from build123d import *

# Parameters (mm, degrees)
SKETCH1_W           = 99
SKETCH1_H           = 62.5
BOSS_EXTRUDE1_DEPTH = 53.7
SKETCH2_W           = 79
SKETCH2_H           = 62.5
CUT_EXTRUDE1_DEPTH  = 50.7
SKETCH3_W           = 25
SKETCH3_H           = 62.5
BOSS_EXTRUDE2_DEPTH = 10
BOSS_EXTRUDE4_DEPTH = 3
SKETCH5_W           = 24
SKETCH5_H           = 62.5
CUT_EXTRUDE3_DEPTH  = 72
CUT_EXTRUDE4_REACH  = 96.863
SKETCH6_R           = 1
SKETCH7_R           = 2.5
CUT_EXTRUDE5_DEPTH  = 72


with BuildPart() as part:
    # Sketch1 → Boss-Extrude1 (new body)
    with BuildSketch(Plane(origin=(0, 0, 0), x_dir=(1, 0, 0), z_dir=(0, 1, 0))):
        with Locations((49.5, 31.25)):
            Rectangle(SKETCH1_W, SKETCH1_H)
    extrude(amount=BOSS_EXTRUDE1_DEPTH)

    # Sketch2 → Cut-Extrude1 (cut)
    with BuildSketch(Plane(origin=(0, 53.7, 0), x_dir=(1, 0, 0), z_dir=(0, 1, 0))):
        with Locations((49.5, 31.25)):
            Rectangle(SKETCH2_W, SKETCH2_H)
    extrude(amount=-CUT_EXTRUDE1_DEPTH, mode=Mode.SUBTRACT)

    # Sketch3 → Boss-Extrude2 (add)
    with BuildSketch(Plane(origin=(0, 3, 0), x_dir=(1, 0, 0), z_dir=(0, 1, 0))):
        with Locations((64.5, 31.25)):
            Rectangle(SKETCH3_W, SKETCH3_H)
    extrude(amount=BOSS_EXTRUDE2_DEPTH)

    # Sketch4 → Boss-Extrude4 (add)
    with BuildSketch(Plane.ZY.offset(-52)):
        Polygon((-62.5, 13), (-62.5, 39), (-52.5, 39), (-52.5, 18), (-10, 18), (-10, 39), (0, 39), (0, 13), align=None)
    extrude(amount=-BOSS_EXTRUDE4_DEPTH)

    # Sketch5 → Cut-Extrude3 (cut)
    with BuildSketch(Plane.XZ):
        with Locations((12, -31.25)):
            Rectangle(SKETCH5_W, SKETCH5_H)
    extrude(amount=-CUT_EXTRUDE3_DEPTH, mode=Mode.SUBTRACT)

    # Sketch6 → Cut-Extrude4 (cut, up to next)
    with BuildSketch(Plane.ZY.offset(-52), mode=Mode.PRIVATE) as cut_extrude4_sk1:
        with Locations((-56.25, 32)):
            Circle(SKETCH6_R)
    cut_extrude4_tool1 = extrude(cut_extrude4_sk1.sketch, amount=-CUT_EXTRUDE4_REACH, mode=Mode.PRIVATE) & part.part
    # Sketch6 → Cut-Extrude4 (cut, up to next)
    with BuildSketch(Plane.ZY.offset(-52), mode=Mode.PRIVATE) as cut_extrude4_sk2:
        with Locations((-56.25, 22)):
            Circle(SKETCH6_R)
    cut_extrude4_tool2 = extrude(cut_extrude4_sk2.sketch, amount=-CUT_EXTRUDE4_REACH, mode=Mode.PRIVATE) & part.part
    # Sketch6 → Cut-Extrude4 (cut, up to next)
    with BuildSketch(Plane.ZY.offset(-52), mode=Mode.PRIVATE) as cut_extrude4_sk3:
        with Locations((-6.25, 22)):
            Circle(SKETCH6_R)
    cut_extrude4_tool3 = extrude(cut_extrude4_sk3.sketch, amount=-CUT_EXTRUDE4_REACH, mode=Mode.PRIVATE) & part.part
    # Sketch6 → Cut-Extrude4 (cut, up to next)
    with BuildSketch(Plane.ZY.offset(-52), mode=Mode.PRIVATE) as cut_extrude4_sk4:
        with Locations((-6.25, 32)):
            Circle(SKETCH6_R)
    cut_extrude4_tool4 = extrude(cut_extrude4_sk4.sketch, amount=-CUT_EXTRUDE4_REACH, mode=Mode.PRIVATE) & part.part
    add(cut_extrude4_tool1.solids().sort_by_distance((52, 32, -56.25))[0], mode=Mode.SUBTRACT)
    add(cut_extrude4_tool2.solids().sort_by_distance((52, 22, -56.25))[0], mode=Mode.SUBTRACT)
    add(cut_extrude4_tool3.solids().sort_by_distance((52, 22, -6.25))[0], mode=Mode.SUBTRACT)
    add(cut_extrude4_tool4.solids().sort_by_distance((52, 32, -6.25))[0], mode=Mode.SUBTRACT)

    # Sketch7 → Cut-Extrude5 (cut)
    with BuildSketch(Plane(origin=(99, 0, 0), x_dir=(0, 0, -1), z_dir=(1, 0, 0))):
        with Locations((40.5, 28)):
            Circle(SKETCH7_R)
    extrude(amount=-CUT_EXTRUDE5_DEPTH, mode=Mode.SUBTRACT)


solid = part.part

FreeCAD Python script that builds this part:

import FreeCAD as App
import Part
import Sketcher

doc = App.newDocument("Part")
params = doc.addObject("Spreadsheet::Sheet", "Params")
for row, (alias, value) in enumerate([
    ("sketch1_width", "99 mm"),
    ("sketch1_height", "62.5 mm"),
    ("pad1_length", "53.7 mm"),
    ("sketch2_width", "79 mm"),
    ("sketch2_height", "62.5 mm"),
    ("pocket1_length", "50.7 mm"),
    ("sketch3_width", "25 mm"),
    ("sketch3_height", "62.5 mm"),
    ("pad2_length", "10 mm"),
    ("sketch4_width", "26 mm"),
    ("sketch4_width2", "21 mm"),
    ("sketch4_height", "10 mm"),
    ("sketch4_height2", "62.5 mm"),
    ("pad3_length", "3 mm"),
    ("sketch5_width", "24 mm"),
    ("sketch5_height", "62.5 mm"),
    ("pocket2_length", "72 mm"),
    ("sketch6_diameter", "2 mm"),
    ("sketch7_diameter", "2 mm"),
    ("sketch8_diameter", "2 mm"),
    ("sketch9_diameter", "2 mm"),
    ("sketch10_diameter", "5 mm"),
    ("pocket7_length", "72 mm"),
], start=1):
    params.set(f"A{row}", alias)
    params.set(f"B{row}", "=" + value)
    params.setAlias(f"B{row}", alias)

body = doc.addObject("PartDesign::Body", "Body")

# Sketch on XZ plane
sketch1 = body.newObject("Sketcher::SketchObject", "Sketch")
sketch1.AttachmentSupport = (doc.getObject("XZ_Plane"), [""])
sketch1.MapMode = "FlatFace"
sketch1.addGeometry(Part.LineSegment(App.Vector(0, -62.5, 0), App.Vector(0, 0, 0)), False)
sketch1.addGeometry(Part.LineSegment(App.Vector(0, 0, 0), App.Vector(99, 0, 0)), False)
sketch1.addGeometry(Part.LineSegment(App.Vector(99, 0, 0), App.Vector(99, -62.5, 0)), False)
sketch1.addGeometry(Part.LineSegment(App.Vector(99, -62.5, 0), App.Vector(0, -62.5, 0)), False)
sketch1.addConstraint(Sketcher.Constraint("Coincident", 0, 2, 1, 1))
sketch1.addConstraint(Sketcher.Constraint("Coincident", 1, 2, 2, 1))
sketch1.addConstraint(Sketcher.Constraint("Coincident", 2, 2, 3, 1))
sketch1.addConstraint(Sketcher.Constraint("Coincident", 3, 2, 0, 1))
sketch1.addConstraint(Sketcher.Constraint("Vertical", 0))
sketch1.addConstraint(Sketcher.Constraint("Horizontal", 1))
sketch1.addConstraint(Sketcher.Constraint("Vertical", 2))
sketch1.addConstraint(Sketcher.Constraint("Horizontal", 3))
sketch1.addConstraint(Sketcher.Constraint("Coincident", 0, 2, -1, 1))
sketch1.addConstraint(Sketcher.Constraint("DistanceX", 1, 1, 1, 2, 99.0))
sketch1.addConstraint(Sketcher.Constraint("DistanceY", 0, 1, 0, 2, 62.5))
sketch1.setExpression("Constraints[9]", "Params.sketch1_width")
sketch1.setExpression("Constraints[10]", "Params.sketch1_height")
pad1 = body.newObject("PartDesign::Pad", "Pad")
pad1.Profile = sketch1
pad1.setExpression("Length", "Params.pad1_length")
pad1.Reversed = True

# Sketch on XZ plane
sketch2 = body.newObject("Sketcher::SketchObject", "Sketch001")
sketch2.AttachmentSupport = (doc.getObject("XZ_Plane"), [""])
sketch2.MapMode = "FlatFace"
sketch2.AttachmentOffset = App.Placement(App.Vector(0, 0, -53.7), App.Rotation())
sketch2.addGeometry(Part.LineSegment(App.Vector(10, -62.5, 0), App.Vector(10, 0, 0)), False)
sketch2.addGeometry(Part.LineSegment(App.Vector(10, 0, 0), App.Vector(89, 0, 0)), False)
sketch2.addGeometry(Part.LineSegment(App.Vector(89, 0, 0), App.Vector(89, -62.5, 0)), False)
sketch2.addGeometry(Part.LineSegment(App.Vector(89, -62.5, 0), App.Vector(10, -62.5, 0)), False)
sketch2.addConstraint(Sketcher.Constraint("Coincident", 0, 2, 1, 1))
sketch2.addConstraint(Sketcher.Constraint("Coincident", 1, 2, 2, 1))
sketch2.addConstraint(Sketcher.Constraint("Coincident", 2, 2, 3, 1))
sketch2.addConstraint(Sketcher.Constraint("Coincident", 3, 2, 0, 1))
sketch2.addConstraint(Sketcher.Constraint("Vertical", 0))
sketch2.addConstraint(Sketcher.Constraint("Horizontal", 1))
sketch2.addConstraint(Sketcher.Constraint("Vertical", 2))
sketch2.addConstraint(Sketcher.Constraint("Horizontal", 3))
sketch2.addConstraint(Sketcher.Constraint("PointOnObject", 0, 2, -1))
sketch2.addConstraint(Sketcher.Constraint("DistanceX", 1, 1, 1, 2, 79.0))
sketch2.addConstraint(Sketcher.Constraint("DistanceY", 0, 1, 0, 2, 62.5))
sketch2.addConstraint(Sketcher.Constraint("DistanceX", -1, 1, 0, 2, 10.0))
sketch2.setExpression("Constraints[9]", "Params.sketch2_width")
sketch2.setExpression("Constraints[10]", "Params.sketch2_height")
pocket1 = body.newObject("PartDesign::Pocket", "Pocket")
pocket1.Profile = sketch2
pocket1.setExpression("Length", "Params.pocket1_length")
pocket1.Reversed = True

# Sketch on XZ plane
sketch3 = body.newObject("Sketcher::SketchObject", "Sketch002")
sketch3.AttachmentSupport = (doc.getObject("XZ_Plane"), [""])
sketch3.MapMode = "FlatFace"
sketch3.AttachmentOffset = App.Placement(App.Vector(0, 0, -3), App.Rotation())
sketch3.addGeometry(Part.LineSegment(App.Vector(52, -62.5, 0), App.Vector(52, 0, 0)), False)
sketch3.addGeometry(Part.LineSegment(App.Vector(52, 0, 0), App.Vector(77, 0, 0)), False)
sketch3.addGeometry(Part.LineSegment(App.Vector(77, 0, 0), App.Vector(77, -62.5, 0)), False)
sketch3.addGeometry(Part.LineSegment(App.Vector(77, -62.5, 0), App.Vector(52, -62.5, 0)), False)
sketch3.addConstraint(Sketcher.Constraint("Coincident", 0, 2, 1, 1))
sketch3.addConstraint(Sketcher.Constraint("Coincident", 1, 2, 2, 1))
sketch3.addConstraint(Sketcher.Constraint("Coincident", 2, 2, 3, 1))
sketch3.addConstraint(Sketcher.Constraint("Coincident", 3, 2, 0, 1))
sketch3.addConstraint(Sketcher.Constraint("Vertical", 0))
sketch3.addConstraint(Sketcher.Constraint("Horizontal", 1))
sketch3.addConstraint(Sketcher.Constraint("Vertical", 2))
sketch3.addConstraint(Sketcher.Constraint("Horizontal", 3))
sketch3.addConstraint(Sketcher.Constraint("PointOnObject", 0, 2, -1))
sketch3.addConstraint(Sketcher.Constraint("DistanceX", 1, 1, 1, 2, 25.0))
sketch3.addConstraint(Sketcher.Constraint("DistanceY", 0, 1, 0, 2, 62.5))
sketch3.addConstraint(Sketcher.Constraint("DistanceX", -1, 1, 0, 2, 52.0))
sketch3.setExpression("Constraints[9]", "Params.sketch3_width")
sketch3.setExpression("Constraints[10]", "Params.sketch3_height")
pad2 = body.newObject("PartDesign::Pad", "Pad001")
pad2.Profile = sketch3
pad2.setExpression("Length", "Params.pad2_length")
pad2.Reversed = True

# Sketch on YZ plane
sketch4 = body.newObject("Sketcher::SketchObject", "Sketch003")
sketch4.AttachmentSupport = (doc.getObject("YZ_Plane"), [""])
sketch4.MapMode = "FlatFace"
sketch4.AttachmentOffset = App.Placement(App.Vector(0, 0, 52), App.Rotation())
sketch4.addGeometry(Part.LineSegment(App.Vector(39, -62.5, 0), App.Vector(13, -62.5, 0)), False)
sketch4.addGeometry(Part.LineSegment(App.Vector(13, -62.5, 0), App.Vector(13, 0, 0)), False)
sketch4.addGeometry(Part.LineSegment(App.Vector(13, 0, 0), App.Vector(39, 0, 0)), False)
sketch4.addGeometry(Part.LineSegment(App.Vector(39, 0, 0), App.Vector(39, -10, 0)), False)
sketch4.addGeometry(Part.LineSegment(App.Vector(39, -10, 0), App.Vector(18, -10, 0)), False)
sketch4.addGeometry(Part.LineSegment(App.Vector(18, -10, 0), App.Vector(18, -52.5, 0)), False)
sketch4.addGeometry(Part.LineSegment(App.Vector(18, -52.5, 0), App.Vector(39, -52.5, 0)), False)
sketch4.addGeometry(Part.LineSegment(App.Vector(39, -52.5, 0), App.Vector(39, -62.5, 0)), False)
sketch4.addConstraint(Sketcher.Constraint("Coincident", 0, 2, 1, 1))
sketch4.addConstraint(Sketcher.Constraint("Coincident", 1, 2, 2, 1))
sketch4.addConstraint(Sketcher.Constraint("Coincident", 2, 2, 3, 1))
sketch4.addConstraint(Sketcher.Constraint("Coincident", 3, 2, 4, 1))
sketch4.addConstraint(Sketcher.Constraint("Coincident", 4, 2, 5, 1))
sketch4.addConstraint(Sketcher.Constraint("Coincident", 5, 2, 6, 1))
sketch4.addConstraint(Sketcher.Constraint("Coincident", 6, 2, 7, 1))
sketch4.addConstraint(Sketcher.Constraint("Coincident", 7, 2, 0, 1))
sketch4.addConstraint(Sketcher.Constraint("Horizontal", 0))
sketch4.addConstraint(Sketcher.Constraint("Vertical", 1))
sketch4.addConstraint(Sketcher.Constraint("Horizontal", 2))
sketch4.addConstraint(Sketcher.Constraint("Vertical", 3))
sketch4.addConstraint(Sketcher.Constraint("Horizontal", 4))
sketch4.addConstraint(Sketcher.Constraint("Vertical", 5))
sketch4.addConstraint(Sketcher.Constraint("Horizontal", 6))
sketch4.addConstraint(Sketcher.Constraint("Vertical", 7))
sketch4.addConstraint(Sketcher.Constraint("PointOnObject", 1, 2, -1))
sketch4.addConstraint(Sketcher.Constraint("Vertical", 3, 2, 6, 2))
sketch4.addConstraint(Sketcher.Constraint("Equal", 3, 7))
sketch4.addConstraint(Sketcher.Constraint("DistanceX", 0, 2, 0, 1, 26.0))
sketch4.addConstraint(Sketcher.Constraint("DistanceX", 4, 2, 4, 1, 21.0))
sketch4.addConstraint(Sketcher.Constraint("DistanceY", 3, 2, 3, 1, 10.0))
sketch4.addConstraint(Sketcher.Constraint("DistanceY", 1, 1, 1, 2, 62.5))
sketch4.addConstraint(Sketcher.Constraint("DistanceX", -1, 1, 0, 2, 13.0))
sketch4.setExpression("Constraints[19]", "Params.sketch4_width")
sketch4.setExpression("Constraints[20]", "Params.sketch4_width2")
sketch4.setExpression("Constraints[21]", "Params.sketch4_height")
sketch4.setExpression("Constraints[22]", "Params.sketch4_height2")
pad3 = body.newObject("PartDesign::Pad", "Pad002")
pad3.Profile = sketch4
pad3.setExpression("Length", "Params.pad3_length")

# Sketch on XZ plane
sketch5 = body.newObject("Sketcher::SketchObject", "Sketch004")
sketch5.AttachmentSupport = (doc.getObject("XZ_Plane"), [""])
sketch5.MapMode = "FlatFace"
sketch5.addGeometry(Part.LineSegment(App.Vector(0, 0, 0), App.Vector(0, -62.5, 0)), False)
sketch5.addGeometry(Part.LineSegment(App.Vector(0, -62.5, 0), App.Vector(24, -62.5, 0)), False)
sketch5.addGeometry(Part.LineSegment(App.Vector(24, -62.5, 0), App.Vector(24, 0, 0)), False)
sketch5.addGeometry(Part.LineSegment(App.Vector(24, 0, 0), App.Vector(0, 0, 0)), False)
sketch5.addConstraint(Sketcher.Constraint("Coincident", 0, 2, 1, 1))
sketch5.addConstraint(Sketcher.Constraint("Coincident", 1, 2, 2, 1))
sketch5.addConstraint(Sketcher.Constraint("Coincident", 2, 2, 3, 1))
sketch5.addConstraint(Sketcher.Constraint("Coincident", 3, 2, 0, 1))
sketch5.addConstraint(Sketcher.Constraint("Vertical", 0))
sketch5.addConstraint(Sketcher.Constraint("Horizontal", 1))
sketch5.addConstraint(Sketcher.Constraint("Vertical", 2))
sketch5.addConstraint(Sketcher.Constraint("Horizontal", 3))
sketch5.addConstraint(Sketcher.Constraint("Coincident", 3, 2, -1, 1))
sketch5.addConstraint(Sketcher.Constraint("DistanceX", 1, 1, 1, 2, 24.0))
sketch5.addConstraint(Sketcher.Constraint("DistanceY", 0, 2, 0, 1, 62.5))
sketch5.setExpression("Constraints[9]", "Params.sketch5_width")
sketch5.setExpression("Constraints[10]", "Params.sketch5_height")
pocket2 = body.newObject("PartDesign::Pocket", "Pocket001")
pocket2.Profile = sketch5
pocket2.setExpression("Length", "Params.pocket2_length")

# Sketch on YZ plane
sketch6 = body.newObject("Sketcher::SketchObject", "Sketch005")
sketch6.AttachmentSupport = (doc.getObject("YZ_Plane"), [""])
sketch6.MapMode = "FlatFace"
sketch6.AttachmentOffset = App.Placement(App.Vector(0, 0, 52), App.Rotation())
sketch6.addGeometry(Part.Circle(App.Vector(32, -56.25, 0), App.Vector(0, 0, 1), 1), False)
sketch6.addConstraint(Sketcher.Constraint("Diameter", 0, 2.0))
sketch6.addConstraint(Sketcher.Constraint("DistanceX", -1, 1, 0, 3, 32.0))
sketch6.addConstraint(Sketcher.Constraint("DistanceY", 0, 3, -1, 1, 56.25))
sketch6.setExpression("Constraints[0]", "Params.sketch6_diameter")
pocket3 = body.newObject("PartDesign::Pocket", "Pocket002")
pocket3.Profile = sketch6
pocket3.Type = "UpToFirst"
pocket3.Reversed = True

# Sketch on YZ plane
sketch7 = body.newObject("Sketcher::SketchObject", "Sketch006")
sketch7.AttachmentSupport = (doc.getObject("YZ_Plane"), [""])
sketch7.MapMode = "FlatFace"
sketch7.AttachmentOffset = App.Placement(App.Vector(0, 0, 52), App.Rotation())
sketch7.addGeometry(Part.Circle(App.Vector(22, -56.25, 0), App.Vector(0, 0, 1), 1), False)
sketch7.addConstraint(Sketcher.Constraint("Diameter", 0, 2.0))
sketch7.addConstraint(Sketcher.Constraint("DistanceX", -1, 1, 0, 3, 22.0))
sketch7.addConstraint(Sketcher.Constraint("DistanceY", 0, 3, -1, 1, 56.25))
sketch7.setExpression("Constraints[0]", "Params.sketch7_diameter")
pocket4 = body.newObject("PartDesign::Pocket", "Pocket003")
pocket4.Profile = sketch7
pocket4.Type = "UpToFirst"
pocket4.Reversed = True

# Sketch on YZ plane
sketch8 = body.newObject("Sketcher::SketchObject", "Sketch007")
sketch8.AttachmentSupport = (doc.getObject("YZ_Plane"), [""])
sketch8.MapMode = "FlatFace"
sketch8.AttachmentOffset = App.Placement(App.Vector(0, 0, 52), App.Rotation())
sketch8.addGeometry(Part.Circle(App.Vector(22, -6.25, 0), App.Vector(0, 0, 1), 1), False)
sketch8.addConstraint(Sketcher.Constraint("Diameter", 0, 2.0))
sketch8.addConstraint(Sketcher.Constraint("DistanceX", -1, 1, 0, 3, 22.0))
sketch8.addConstraint(Sketcher.Constraint("DistanceY", 0, 3, -1, 1, 6.25))
sketch8.setExpression("Constraints[0]", "Params.sketch8_diameter")
pocket5 = body.newObject("PartDesign::Pocket", "Pocket004")
pocket5.Profile = sketch8
pocket5.Type = "UpToFirst"
pocket5.Reversed = True

# Sketch on YZ plane
sketch9 = body.newObject("Sketcher::SketchObject", "Sketch008")
sketch9.AttachmentSupport = (doc.getObject("YZ_Plane"), [""])
sketch9.MapMode = "FlatFace"
sketch9.AttachmentOffset = App.Placement(App.Vector(0, 0, 52), App.Rotation())
sketch9.addGeometry(Part.Circle(App.Vector(32, -6.25, 0), App.Vector(0, 0, 1), 1), False)
sketch9.addConstraint(Sketcher.Constraint("Diameter", 0, 2.0))
sketch9.addConstraint(Sketcher.Constraint("DistanceX", -1, 1, 0, 3, 32.0))
sketch9.addConstraint(Sketcher.Constraint("DistanceY", 0, 3, -1, 1, 6.25))
sketch9.setExpression("Constraints[0]", "Params.sketch9_diameter")
pocket6 = body.newObject("PartDesign::Pocket", "Pocket005")
pocket6.Profile = sketch9
pocket6.Type = "UpToFirst"
pocket6.Reversed = True

# Sketch on YZ plane
sketch10 = body.newObject("Sketcher::SketchObject", "Sketch009")
sketch10.AttachmentSupport = (doc.getObject("YZ_Plane"), [""])
sketch10.MapMode = "FlatFace"
sketch10.AttachmentOffset = App.Placement(App.Vector(0, 0, 99), App.Rotation())
sketch10.addGeometry(Part.Circle(App.Vector(28, -40.5, 0), App.Vector(0, 0, 1), 2.5), False)
sketch10.addConstraint(Sketcher.Constraint("Diameter", 0, 5.0))
sketch10.addConstraint(Sketcher.Constraint("DistanceX", -1, 1, 0, 3, 28.0))
sketch10.addConstraint(Sketcher.Constraint("DistanceY", 0, 3, -1, 1, 40.5))
sketch10.setExpression("Constraints[0]", "Params.sketch10_diameter")
pocket7 = body.newObject("PartDesign::Pocket", "Pocket006")
pocket7.Profile = sketch10
pocket7.setExpression("Length", "Params.pocket7_length")

doc.recompute()
